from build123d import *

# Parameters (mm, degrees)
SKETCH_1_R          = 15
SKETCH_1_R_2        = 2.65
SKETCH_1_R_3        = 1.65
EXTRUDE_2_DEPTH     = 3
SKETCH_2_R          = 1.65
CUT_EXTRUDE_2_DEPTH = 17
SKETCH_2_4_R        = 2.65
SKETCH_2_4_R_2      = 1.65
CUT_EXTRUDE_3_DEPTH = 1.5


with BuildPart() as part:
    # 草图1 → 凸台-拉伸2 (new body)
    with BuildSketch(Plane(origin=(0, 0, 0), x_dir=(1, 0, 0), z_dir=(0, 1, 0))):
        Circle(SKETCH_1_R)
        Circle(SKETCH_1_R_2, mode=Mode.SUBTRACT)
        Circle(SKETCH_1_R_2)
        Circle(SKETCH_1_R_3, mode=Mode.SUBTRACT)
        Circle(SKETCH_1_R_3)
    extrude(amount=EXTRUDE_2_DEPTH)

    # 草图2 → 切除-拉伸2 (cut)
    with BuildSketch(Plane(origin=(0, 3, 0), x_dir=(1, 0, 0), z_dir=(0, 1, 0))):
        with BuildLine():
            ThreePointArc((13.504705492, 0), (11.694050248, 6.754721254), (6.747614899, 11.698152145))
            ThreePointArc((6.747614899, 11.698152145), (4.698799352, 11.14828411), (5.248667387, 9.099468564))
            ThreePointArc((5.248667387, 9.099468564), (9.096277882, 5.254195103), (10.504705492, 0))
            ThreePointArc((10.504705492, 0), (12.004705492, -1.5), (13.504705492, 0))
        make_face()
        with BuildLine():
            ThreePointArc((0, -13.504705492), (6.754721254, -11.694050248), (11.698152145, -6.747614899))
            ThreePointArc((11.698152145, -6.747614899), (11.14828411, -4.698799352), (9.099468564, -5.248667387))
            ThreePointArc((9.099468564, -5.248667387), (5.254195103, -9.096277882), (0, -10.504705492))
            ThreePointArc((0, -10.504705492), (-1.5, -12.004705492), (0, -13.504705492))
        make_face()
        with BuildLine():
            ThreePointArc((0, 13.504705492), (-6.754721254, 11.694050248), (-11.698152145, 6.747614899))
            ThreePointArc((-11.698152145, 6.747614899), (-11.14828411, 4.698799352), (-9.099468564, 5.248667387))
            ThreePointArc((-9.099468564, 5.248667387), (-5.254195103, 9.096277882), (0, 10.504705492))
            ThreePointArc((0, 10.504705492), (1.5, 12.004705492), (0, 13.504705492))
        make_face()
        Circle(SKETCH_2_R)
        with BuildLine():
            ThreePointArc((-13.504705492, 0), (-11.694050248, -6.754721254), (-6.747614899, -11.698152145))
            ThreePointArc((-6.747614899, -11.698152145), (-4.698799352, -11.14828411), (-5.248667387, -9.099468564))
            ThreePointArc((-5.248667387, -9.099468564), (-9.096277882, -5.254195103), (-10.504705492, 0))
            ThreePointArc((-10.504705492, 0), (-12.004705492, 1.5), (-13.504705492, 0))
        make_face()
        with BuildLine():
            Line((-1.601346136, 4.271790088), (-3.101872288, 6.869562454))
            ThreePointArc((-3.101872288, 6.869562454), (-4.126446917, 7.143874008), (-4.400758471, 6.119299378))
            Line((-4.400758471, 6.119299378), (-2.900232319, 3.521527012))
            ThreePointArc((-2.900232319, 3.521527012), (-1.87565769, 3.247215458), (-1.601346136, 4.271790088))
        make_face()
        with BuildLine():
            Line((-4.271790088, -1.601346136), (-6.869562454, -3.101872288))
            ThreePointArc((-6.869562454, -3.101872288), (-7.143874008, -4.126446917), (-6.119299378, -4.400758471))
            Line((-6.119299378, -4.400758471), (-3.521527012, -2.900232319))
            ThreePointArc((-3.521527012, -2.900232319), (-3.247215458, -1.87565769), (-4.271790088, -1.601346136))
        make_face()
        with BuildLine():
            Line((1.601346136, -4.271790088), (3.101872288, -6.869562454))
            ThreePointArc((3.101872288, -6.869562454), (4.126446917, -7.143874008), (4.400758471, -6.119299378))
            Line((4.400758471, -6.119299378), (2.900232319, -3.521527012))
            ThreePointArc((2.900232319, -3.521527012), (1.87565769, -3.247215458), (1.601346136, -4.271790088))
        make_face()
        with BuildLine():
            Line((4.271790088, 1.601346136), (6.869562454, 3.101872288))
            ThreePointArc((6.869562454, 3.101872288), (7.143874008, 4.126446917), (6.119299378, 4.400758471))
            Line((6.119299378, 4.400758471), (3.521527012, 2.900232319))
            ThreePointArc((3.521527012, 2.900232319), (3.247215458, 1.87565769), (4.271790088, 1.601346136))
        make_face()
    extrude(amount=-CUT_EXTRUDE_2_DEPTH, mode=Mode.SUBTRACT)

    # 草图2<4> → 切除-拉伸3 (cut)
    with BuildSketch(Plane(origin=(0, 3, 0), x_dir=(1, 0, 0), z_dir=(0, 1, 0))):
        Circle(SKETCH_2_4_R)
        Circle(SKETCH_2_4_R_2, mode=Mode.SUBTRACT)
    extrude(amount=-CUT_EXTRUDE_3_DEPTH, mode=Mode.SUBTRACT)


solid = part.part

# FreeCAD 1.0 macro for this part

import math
import FreeCAD as App
import Part
import Sketcher

doc = App.newDocument("Part")
body = doc.addObject("PartDesign::Body", "Body")

# Sketch on XZ plane
sketch1 = body.newObject("Sketcher::SketchObject", "Sketch")
sketch1.AttachmentSupport = (doc.getObject("XZ_Plane"), [""])
sketch1.MapMode = "FlatFace"
sketch1.addGeometry(Part.Circle(App.Vector(0, 0, 0), App.Vector(0, 0, 1), 15), False)
sketch1.addConstraint(Sketcher.Constraint("Coincident", 0, 3, -1, 1))
sketch1.addConstraint(Sketcher.Constraint("Diameter", 0, 30.0))
pad1 = body.newObject("PartDesign::Pad", "Pad")
pad1.Profile = sketch1
pad1.Length = 3
pad1.Reversed = True

# Sketch on XZ plane
sketch2 = body.newObject("Sketcher::SketchObject", "Sketch001")
sketch2.AttachmentSupport = (doc.getObject("XZ_Plane"), [""])
sketch2.MapMode = "FlatFace"
sketch2.AttachmentOffset = App.Placement(App.Vector(0, 0, -3), App.Rotation())
sketch2.addGeometry(Part.ArcOfCircle(Part.Circle(App.Vector(0, 0, 0), App.Vector(0, 0, 1), 13.5), math.radians(-60), math.radians(0)), False)
sketch2.addGeometry(Part.ArcOfCircle(Part.Circle(App.Vector(6, -10.4, 0), App.Vector(0, 0, 1), 1.5), math.radians(120), math.radians(300)), False)
sketch2.addGeometry(Part.ArcOfCircle(Part.Circle(App.Vector(0, 0, 0), App.Vector(0, 0, 1), 10.5), math.radians(-60), math.radians(0)), False)
sketch2.addGeometry(Part.ArcOfCircle(Part.Circle(App.Vector(12, 0, 0), App.Vector(0, 0, 1), 1.5), math.radians(0), math.radians(180)), False)
sketch2.addGeometry(Part.ArcOfCircle(Part.Circle(App.Vector(0, 0, 0), App.Vector(0, 0, 1), 13.5), math.radians(30), math.radians(90)), False)
sketch2.addGeometry(Part.ArcOfCircle(Part.Circle(App.Vector(10.4, 6, 0), App.Vector(0, 0, 1), 1.5), math.radians(-150), math.radians(30)), False)
sketch2.addGeometry(Part.ArcOfCircle(Part.Circle(App.Vector(0, 0, 0), App.Vector(0, 0, 1), 10.5), math.radians(30), math.radians(90)), False)
sketch2.addGeometry(Part.ArcOfCircle(Part.Circle(App.Vector(0, 12, 0), App.Vector(0, 0, 1), 1.5), math.radians(90), math.radians(270)), False)
sketch2.addGeometry(Part.ArcOfCircle(Part.Circle(App.Vector(0, 0, 0), App.Vector(0, 0, 1), 13.5), math.radians(-150), math.radians(-90)), False)
sketch2.addGeometry(Part.ArcOfCircle(Part.Circle(App.Vector(-10.4, -6, 0), App.Vector(0, 0, 1), 1.5), math.radians(30), math.radians(210)), False)
sketch2.addGeometry(Part.ArcOfCircle(Part.Circle(App.Vector(0, 0, 0), App.Vector(0, 0, 1), 10.5), math.radians(-150), math.radians(-90)), False)
sketch2.addGeometry(Part.ArcOfCircle(Part.Circle(App.Vector(0, -12, 0), App.Vector(0, 0, 1), 1.5), math.radians(-90), math.radians(90)), False)
sketch2.addGeometry(Part.Circle(App.Vector(0, 0, 0), App.Vector(0, 0, 1), 1.6), False)
sketch2.addGeometry(Part.ArcOfCircle(Part.Circle(App.Vector(0, 0, 0), App.Vector(0, 0, 1), 13.5), math.radians(120), math.radians(180)), False)
sketch2.addGeometry(Part.ArcOfCircle(Part.Circle(App.Vector(-6, 10.4, 0), App.Vector(0, 0, 1), 1.5), math.radians(-60), math.radians(120)), False)
sketch2.addGeometry(Part.ArcOfCircle(Part.Circle(App.Vector(0, 0, 0), App.Vector(0, 0, 1), 10.5), math.radians(120), math.radians(180)), False)
sketch2.addGeometry(Part.ArcOfCircle(Part.Circle(App.Vector(-12, 0, 0), App.Vector(0, 0, 1), 1.5), math.radians(180), math.radians(360)), False)
sketch2.addGeometry(Part.LineSegment(App.Vector(-1.6, -4.3, 0), App.Vector(-3.1, -6.9, 0)), False)
sketch2.addGeometry(Part.ArcOfCircle(Part.Circle(App.Vector(-3.8, -6.5, 0), App.Vector(0, 0, 1), 0.8), math.radians(150), math.radians(330)), False)
sketch2.addGeometry(Part.LineSegment(App.Vector(-4.4, -6.1, 0), App.Vector(-2.9, -3.5, 0)), False)
sketch2.addGeometry(Part.ArcOfCircle(Part.Circle(App.Vector(-2.3, -3.9, 0), App.Vector(0, 0, 1), 0.8), math.radians(-30), math.radians(150)), False)
sketch2.addGeometry(Part.LineSegment(App.Vector(-4.3, 1.6, 0), App.Vector(-6.9, 3.1, 0)), False)
sketch2.addGeometry(Part.ArcOfCircle(Part.Circle(App.Vector(-6.5, 3.8, 0), App.Vector(0, 0, 1), 0.8), math.radians(60), math.radians(240)), False)
sketch2.addGeometry(Part.LineSegment(App.Vector(-6.1, 4.4, 0), App.Vector(-3.5, 2.9, 0)), False)
sketch2.addGeometry(Part.ArcOfCircle(Part.Circle(App.Vector(-3.9, 2.3, 0), App.Vector(0, 0, 1), 0.8), math.radians(-120), math.radians(60)), False)
sketch2.addGeometry(Part.LineSegment(App.Vector(1.6, 4.3, 0), App.Vector(3.1, 6.9, 0)), False)
sketch2.addGeometry(Part.ArcOfCircle(Part.Circle(App.Vector(3.8, 6.5, 0), App.Vector(0, 0, 1), 0.8), math.radians(-30), math.radians(150)), False)
sketch2.addGeometry(Part.LineSegment(App.Vector(4.4, 6.1, 0), App.Vector(2.9, 3.5, 0)), False)
sketch2.addGeometry(Part.ArcOfCircle(Part.Circle(App.Vector(2.3, 3.9, 0), App.Vector(0, 0, 1), 0.8), math.radians(150), math.radians(330)), False)
sketch2.addGeometry(Part.LineSegment(App.Vector(4.3, -1.6, 0), App.Vector(6.9, -3.1, 0)), False)
sketch2.addGeometry(Part.ArcOfCircle(Part.Circle(App.Vector(6.5, -3.8, 0), App.Vector(0, 0, 1), 0.8), math.radians(-120), math.radians(60)), False)
sketch2.addGeometry(Part.LineSegment(App.Vector(6.1, -4.4, 0), App.Vector(3.5, -2.9, 0)), False)
sketch2.addGeometry(Part.ArcOfCircle(Part.Circle(App.Vector(3.9, -2.3, 0), App.Vector(0, 0, 1), 0.8), math.radians(60), math.radians(240)), False)
sketch2.addConstraint(Sketcher.Constraint("Tangent", 0, 1, 1, 2))
sketch2.addConstraint(Sketcher.Constraint("Tangent", 1, 1, 2, 1))
sketch2.addConstraint(Sketcher.Constraint("Tangent", 2, 2, 3, 2))
sketch2.addConstraint(Sketcher.Constraint("Tangent", 3, 1, 0, 2))
sketch2.addConstraint(Sketcher.Constraint("Tangent", 4, 1, 5, 2))
sketch2.addConstraint(Sketcher.Constraint("Tangent", 5, 1, 6, 1))
sketch2.addConstraint(Sketcher.Constraint("Tangent", 6, 2, 7, 2))
sketch2.addConstraint(Sketcher.Constraint("Tangent", 7, 1, 4, 2))
sketch2.addConstraint(Sketcher.Constraint("Tangent", 8, 1, 9, 2))
sketch2.addConstraint(Sketcher.Constraint("Tangent", 9, 1, 10, 1))
sketch2.addConstraint(Sketcher.Constraint("Tangent", 10, 2, 11, 2))
sketch2.addConstraint(Sketcher.Constraint("Tangent", 11, 1, 8, 2))
sketch2.addConstraint(Sketcher.Constraint("Tangent", 13, 1, 14, 2))
sketch2.addConstraint(Sketcher.Constraint("Tangent", 14, 1, 15, 1))
sketch2.addConstraint(Sketcher.Constraint("Tangent", 15, 2, 16, 2))
sketch2.addConstraint(Sketcher.Constraint("Tangent", 16, 1, 13, 2))
sketch2.addConstraint(Sketcher.Constraint("Tangent", 17, 2, 18, 2))
sketch2.addConstraint(Sketcher.Constraint("Tangent", 18, 1, 19, 1))
sketch2.addConstraint(Sketcher.Constraint("Tangent", 19, 2, 20, 2))
sketch2.addConstraint(Sketcher.Constraint("Tangent", 20, 1, 17, 1))
sketch2.addConstraint(Sketcher.Constraint("Tangent", 21, 2, 22, 2))
sketch2.addConstraint(Sketcher.Constraint("Tangent", 22, 1, 23, 1))
sketch2.addConstraint(Sketcher.Constraint("Tangent", 23, 2, 24, 2))
sketch2.addConstraint(Sketcher.Constraint("Tangent", 24, 1, 21, 1))
sketch2.addConstraint(Sketcher.Constraint("Tangent", 25, 2, 26, 2))
sketch2.addConstraint(Sketcher.Constraint("Tangent", 26, 1, 27, 1))
sketch2.addConstraint(Sketcher.Constraint("Tangent", 27, 2, 28, 2))
sketch2.addConstraint(Sketcher.Constraint("Tangent", 28, 1, 25, 1))
sketch2.addConstraint(Sketcher.Constraint("Tangent", 29, 2, 30, 2))
sketch2.addConstraint(Sketcher.Constraint("Tangent", 30, 1, 31, 1))
sketch2.addConstraint(Sketcher.Constraint("Tangent", 31, 2, 32, 2))
sketch2.addConstraint(Sketcher.Constraint("Tangent", 32, 1, 29, 1))
sketch2.addConstraint(Sketcher.Constraint("Coincident", 0, 3, -1, 1))
sketch2.addConstraint(Sketcher.Constraint("Coincident", 2, 3, -1, 1))
sketch2.addConstraint(Sketcher.Constraint("Coincident", 4, 3, -1, 1))
sketch2.addConstraint(Sketcher.Constraint("Coincident", 6, 3, -1, 1))
sketch2.addConstraint(Sketcher.Constraint("Coincident", 8, 3, -1, 1))
sketch2.addConstraint(Sketcher.Constraint("Coincident", 10, 3, -1, 1))
sketch2.addConstraint(Sketcher.Constraint("Coincident", 12, 3, -1, 1))
sketch2.addConstraint(Sketcher.Constraint("Coincident", 13, 3, -1, 1))
sketch2.addConstraint(Sketcher.Constraint("Coincident", 15, 3, -1, 1))
sketch2.addConstraint(Sketcher.Constraint("Equal", 0, 4))
sketch2.addConstraint(Sketcher.Constraint("Equal", 3, 5))
sketch2.addConstraint(Sketcher.Constraint("Equal", 4, 8))
sketch2.addConstraint(Sketcher.Constraint("Equal", 7, 9))
sketch2.addConstraint(Sketcher.Constraint("Equal", 8, 13))
sketch2.addConstraint(Sketcher.Constraint("Equal", 11, 14))
sketch2.addConstraint(Sketcher.Constraint("Equal", 18, 20))
sketch2.addConstraint(Sketcher.Constraint("Equal", 20, 22))
sketch2.addConstraint(Sketcher.Constraint("Equal", 22, 24))
sketch2.addConstraint(Sketcher.Constraint("Equal", 24, 26))
sketch2.addConstraint(Sketcher.Constraint("Equal", 26, 28))
sketch2.addConstraint(Sketcher.Constraint("Equal", 28, 30))
sketch2.addConstraint(Sketcher.Constraint("Equal", 30, 32))
sketch2.addConstraint(Sketcher.Constraint("Symmetric", 18, 3, 26, 3, -1, 1))
sketch2.addConstraint(Sketcher.Constraint("Symmetric", 20, 3, 28, 3, -1, 1))
sketch2.addConstraint(Sketcher.Constraint("Symmetric", 22, 3, 30, 3, -1, 1))
sketch2.addConstraint(Sketcher.Constraint("Symmetric", 24, 3, 32, 3, -1, 1))
sketch2.addConstraint(Sketcher.Constraint("PointOnObject", 3, 3, -1))
sketch2.addConstraint(Sketcher.Constraint("PointOnObject", 7, 3, -2))
sketch2.addConstraint(Sketcher.Constraint("PointOnObject", 11, 3, -2))
sketch2.addConstraint(Sketcher.Constraint("PointOnObject", 16, 3, -1))
sketch2.addConstraint(Sketcher.Constraint("Perpendicular", 19, 21))
sketch2.addConstraint(Sketcher.Constraint("Equal", 19, 21))
sketch2.addConstraint(Sketcher.Constraint("Diameter", 12, 3.3))
sketch2.addConstraint(Sketcher.Constraint("Radius", 1, 1.5))
sketch2.addConstraint(Sketcher.Constraint("Radius", 18, 0.75))
sketch2.addConstraint(Sketcher.Constraint("Distance", 17, 3.0))
sketch2.addConstraint(Sketcher.Constraint("Radius", 0, 13.504705))
sketch2.addConstraint(Sketcher.Constraint("DistanceY", 18, 1, -1, 1, 6.119299))
sketch2.addConstraint(Sketcher.Constraint("DistanceX", 22, 1, -1, 1, 6.119299))
sketch2.addConstraint(Sketcher.Constraint("DistanceX", -1, 1, 1, 3, 5.998141))
sketch2.addConstraint(Sketcher.Constraint("DistanceX", -1, 1, 5, 3, 10.39881))
sketch2.addConstraint(Sketcher.Constraint("DistanceX", 9, 3, -1, 1, 10.39881))
sketch2.addConstraint(Sketcher.Constraint("DistanceX", 14, 3, -1, 1, 5.998141))
sketch2.addConstraint(Sketcher.Constraint("DistanceY", 18, 3, -1, 1, 6.494431))
sketch2.addConstraint(Sketcher.Constraint("DistanceX", 20, 3, -1, 1, 2.250789))
sketch2.addConstraint(Sketcher.Constraint("DistanceY", -1, 1, 24, 3, 2.250789))
pocket1 = body.newObject("PartDesign::Pocket", "Pocket")
pocket1.Profile = sketch2
pocket1.Length = 17
pocket1.Reversed = True

# Sketch on XZ plane
sketch3 = body.newObject("Sketcher::SketchObject", "Sketch002")
sketch3.AttachmentSupport = (doc.getObject("XZ_Plane"), [""])
sketch3.MapMode = "FlatFace"
sketch3.AttachmentOffset = App.Placement(App.Vector(0, 0, -3), App.Rotation())
sketch3.addGeometry(Part.Circle(App.Vector(0, 0, 0), App.Vector(0, 0, 1), 2.6), False)
sketch3.addGeometry(Part.Circle(App.Vector(0, 0, 0), App.Vector(0, 0, 1), 1.6), False)
sketch3.addConstraint(Sketcher.Constraint("Coincident", 0, 3, -1, 1))
sketch3.addConstraint(Sketcher.Constraint("Coincident", 1, 3, -1, 1))
sketch3.addConstraint(Sketcher.Constraint("Diameter", 0, 5.3))
sketch3.addConstraint(Sketcher.Constraint("Diameter", 1, 3.3))
pocket2 = body.newObject("PartDesign::Pocket", "Pocket001")
pocket2.Profile = sketch3
pocket2.Length = 1.5
pocket2.Reversed = True

doc.recompute()
